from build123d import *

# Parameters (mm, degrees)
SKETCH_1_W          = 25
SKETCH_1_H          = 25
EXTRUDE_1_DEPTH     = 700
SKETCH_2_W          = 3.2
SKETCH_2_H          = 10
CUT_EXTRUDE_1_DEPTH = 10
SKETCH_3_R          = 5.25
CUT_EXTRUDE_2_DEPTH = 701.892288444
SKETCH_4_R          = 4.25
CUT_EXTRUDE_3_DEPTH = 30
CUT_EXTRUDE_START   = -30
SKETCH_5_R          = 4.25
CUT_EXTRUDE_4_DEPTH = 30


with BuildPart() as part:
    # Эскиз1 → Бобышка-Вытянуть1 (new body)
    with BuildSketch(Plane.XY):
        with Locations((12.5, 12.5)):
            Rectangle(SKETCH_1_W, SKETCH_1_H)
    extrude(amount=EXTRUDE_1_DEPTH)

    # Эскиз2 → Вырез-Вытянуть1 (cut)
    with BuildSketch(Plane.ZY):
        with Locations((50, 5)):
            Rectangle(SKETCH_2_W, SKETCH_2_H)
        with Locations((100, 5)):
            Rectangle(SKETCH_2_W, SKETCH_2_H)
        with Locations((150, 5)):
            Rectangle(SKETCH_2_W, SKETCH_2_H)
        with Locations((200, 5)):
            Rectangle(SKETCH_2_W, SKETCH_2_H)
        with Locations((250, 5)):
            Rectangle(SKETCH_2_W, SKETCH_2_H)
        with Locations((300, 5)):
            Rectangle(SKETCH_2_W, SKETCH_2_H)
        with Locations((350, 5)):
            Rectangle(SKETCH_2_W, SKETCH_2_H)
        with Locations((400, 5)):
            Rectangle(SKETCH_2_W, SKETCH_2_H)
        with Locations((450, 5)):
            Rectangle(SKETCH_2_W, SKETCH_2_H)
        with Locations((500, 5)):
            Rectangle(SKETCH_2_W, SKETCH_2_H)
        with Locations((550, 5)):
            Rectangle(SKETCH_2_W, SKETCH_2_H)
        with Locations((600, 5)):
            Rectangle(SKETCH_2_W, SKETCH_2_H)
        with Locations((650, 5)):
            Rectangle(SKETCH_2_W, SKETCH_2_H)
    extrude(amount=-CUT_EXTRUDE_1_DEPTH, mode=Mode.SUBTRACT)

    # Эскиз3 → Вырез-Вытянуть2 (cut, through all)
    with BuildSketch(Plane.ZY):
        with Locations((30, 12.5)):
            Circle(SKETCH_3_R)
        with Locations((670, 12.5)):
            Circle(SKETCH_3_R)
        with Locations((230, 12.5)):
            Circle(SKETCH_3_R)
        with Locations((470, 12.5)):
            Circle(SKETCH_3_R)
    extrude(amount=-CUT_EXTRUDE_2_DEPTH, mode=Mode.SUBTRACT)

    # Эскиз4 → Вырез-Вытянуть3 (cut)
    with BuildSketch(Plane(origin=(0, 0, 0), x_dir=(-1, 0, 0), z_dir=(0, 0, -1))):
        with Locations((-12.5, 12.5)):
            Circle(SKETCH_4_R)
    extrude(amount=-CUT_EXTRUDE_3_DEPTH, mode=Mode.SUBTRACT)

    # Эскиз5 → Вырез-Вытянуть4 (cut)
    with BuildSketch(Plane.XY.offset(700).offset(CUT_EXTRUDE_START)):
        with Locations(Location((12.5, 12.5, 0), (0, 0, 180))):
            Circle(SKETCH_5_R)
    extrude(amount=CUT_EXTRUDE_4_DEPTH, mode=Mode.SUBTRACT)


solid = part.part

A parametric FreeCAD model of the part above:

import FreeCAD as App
import Part
import Sketcher

V = App.Vector
Q = App.Units.Quantity

doc = App.newDocument("Part")
params = doc.addObject("Spreadsheet::Sheet", "Params")
for row, (alias, value) in enumerate([
    ("sketch1_width", "25 mm"),
    ("pad1_length", "700 mm"),
    ("sketch2_width", "10 mm"),
    ("sketch2_height", "3.2 mm"),
    ("pocket1_length", "10 mm"),
    ("sketch3_diameter", "10.5 mm"),
    ("sketch4_diameter", "8.5 mm"),
    ("pocket3_length", "30 mm"),
    ("sketch5_diameter", "8.5 mm"),
    ("pocket4_length", "30 mm"),
], start=1):
    params.set(f"A{row}", alias)
    params.set(f"B{row}", "=" + value)
    params.setAlias(f"B{row}", alias)

body = doc.addObject("PartDesign::Body", "Body")

sketch1 = body.newObject("Sketcher::SketchObject", "Sketch")
sketch1.AttachmentSupport = (doc.getObject("XY_Plane"), [""])
sketch1.MapMode = "FlatFace"
sketch1.addGeometry([
    Part.LineSegment(V(0, 25, 0), V(0, 0, 0)),
    Part.LineSegment(V(0, 0, 0), V(25, 0, 0)),
    Part.LineSegment(V(25, 0, 0), V(25, 25, 0)),
    Part.LineSegment(V(25, 25, 0), V(0, 25, 0)),
], False)
sketch1.addConstraint([
    Sketcher.Constraint("Coincident", 0, 2, 1, 1),
    Sketcher.Constraint("Coincident", 1, 2, 2, 1),
    Sketcher.Constraint("Coincident", 2, 2, 3, 1),
    Sketcher.Constraint("Coincident", 3, 2, 0, 1),
    Sketcher.Constraint("Vertical", 0),
    Sketcher.Constraint("Horizontal", 1),
    Sketcher.Constraint("Vertical", 2),
    Sketcher.Constraint("Horizontal", 3),
    Sketcher.Constraint("Coincident", 0, 2, -1, 1),
    Sketcher.Constraint("Equal", 3, 0),
    Sketcher.Constraint("DistanceX", 1, 1, 1, 2, Q("25 mm")),
])
sketch1.setExpression("Constraints[10]", "Params.sketch1_width")
pad1 = body.newObject("PartDesign::Pad", "Pad")
pad1.Profile = sketch1
pad1.setExpression("Length", "Params.pad1_length")

sketch2 = body.newObject("Sketcher::SketchObject", "Sketch001")
sketch2.AttachmentSupport = (doc.getObject("YZ_Plane"), [""])
sketch2.MapMode = "FlatFace"
sketch2.addGeometry([
    Part.LineSegment(V(10, 48.4, 0), V(0, 48.4, 0)),
    Part.LineSegment(V(0, 48.4, 0), V(0, 51.6, 0)),
    Part.LineSegment(V(0, 51.6, 0), V(10, 51.6, 0)),
    Part.LineSegment(V(10, 51.6, 0), V(10, 48.4, 0)),
    Part.LineSegment(V(10, 98.4, 0), V(0, 98.4, 0)),
    Part.LineSegment(V(0, 98.4, 0), V(0, 101.6, 0)),
    Part.LineSegment(V(0, 101.6, 0), V(10, 101.6, 0)),
    Part.LineSegment(V(10, 101.6, 0), V(10, 98.4, 0)),
    Part.LineSegment(V(10, 148.4, 0), V(0, 148.4, 0)),
    Part.LineSegment(V(0, 148.4, 0), V(0, 151.6, 0)),
    Part.LineSegment(V(0, 151.6, 0), V(10, 151.6, 0)),
    Part.LineSegment(V(10, 151.6, 0), V(10, 148.4, 0)),
    Part.LineSegment(V(10, 198.4, 0), V(0, 198.4, 0)),
    Part.LineSegment(V(0, 198.4, 0), V(0, 201.6, 0)),
    Part.LineSegment(V(0, 201.6, 0), V(10, 201.6, 0)),
    Part.LineSegment(V(10, 201.6, 0), V(10, 198.4, 0)),
    Part.LineSegment(V(10, 248.4, 0), V(0, 248.4, 0)),
    Part.LineSegment(V(0, 248.4, 0), V(0, 251.6, 0)),
    Part.LineSegment(V(0, 251.6, 0), V(10, 251.6, 0)),
    Part.LineSegment(V(10, 251.6, 0), V(10, 248.4, 0)),
    Part.LineSegment(V(10, 298.4, 0), V(0, 298.4, 0)),
    Part.LineSegment(V(0, 298.4, 0), V(0, 301.6, 0)),
    Part.LineSegment(V(0, 301.6, 0), V(10, 301.6, 0)),
    Part.LineSegment(V(10, 301.6, 0), V(10, 298.4, 0)),
    Part.LineSegment(V(10, 348.4, 0), V(0, 348.4, 0)),
    Part.LineSegment(V(0, 348.4, 0), V(0, 351.6, 0)),
    Part.LineSegment(V(0, 351.6, 0), V(10, 351.6, 0)),
    Part.LineSegment(V(10, 351.6, 0), V(10, 348.4, 0)),
    Part.LineSegment(V(10, 398.4, 0), V(0, 398.4, 0)),
    Part.LineSegment(V(0, 398.4, 0), V(0, 401.6, 0)),
    Part.LineSegment(V(0, 401.6, 0), V(10, 401.6, 0)),
    Part.LineSegment(V(10, 401.6, 0), V(10, 398.4, 0)),
    Part.LineSegment(V(10, 448.4, 0), V(0, 448.4, 0)),
    Part.LineSegment(V(0, 448.4, 0), V(0, 451.6, 0)),
    Part.LineSegment(V(0, 451.6, 0), V(10, 451.6, 0)),
    Part.LineSegment(V(10, 451.6, 0), V(10, 448.4, 0)),
    Part.LineSegment(V(10, 498.4, 0), V(0, 498.4, 0)),
    Part.LineSegment(V(0, 498.4, 0), V(0, 501.6, 0)),
    Part.LineSegment(V(0, 501.6, 0), V(10, 501.6, 0)),
    Part.LineSegment(V(10, 501.6, 0), V(10, 498.4, 0)),
    Part.LineSegment(V(10, 548.4, 0), V(0, 548.4, 0)),
    Part.LineSegment(V(0, 548.4, 0), V(0, 551.6, 0)),
    Part.LineSegment(V(0, 551.6, 0), V(10, 551.6, 0)),
    Part.LineSegment(V(10, 551.6, 0), V(10, 548.4, 0)),
    Part.LineSegment(V(10, 598.4, 0), V(0, 598.4, 0)),
    Part.LineSegment(V(0, 598.4, 0), V(0, 601.6, 0)),
    Part.LineSegment(V(0, 601.6, 0), V(10, 601.6, 0)),
    Part.LineSegment(V(10, 601.6, 0), V(10, 598.4, 0)),
    Part.LineSegment(V(10, 648.4, 0), V(0, 648.4, 0)),
    Part.LineSegment(V(0, 648.4, 0), V(0, 651.6, 0)),
    Part.LineSegment(V(0, 651.6, 0), V(10, 651.6, 0)),
    Part.LineSegment(V(10, 651.6, 0), V(10, 648.4, 0)),
], False)
sketch2.addConstraint([
    Sketcher.Constraint("Coincident", 0, 2, 1, 1),
    Sketcher.Constraint("Coincident", 1, 2, 2, 1),
    Sketcher.Constraint("Coincident", 2, 2, 3, 1),
    Sketcher.Constraint("Coincident", 3, 2, 0, 1),
    Sketcher.Constraint("Coincident", 4, 2, 5, 1),
    Sketcher.Constraint("Coincident", 5, 2, 6, 1),
    Sketcher.Constraint("Coincident", 6, 2, 7, 1),
    Sketcher.Constraint("Coincident", 7, 2, 4, 1),
    Sketcher.Constraint("Coincident", 8, 2, 9, 1),
    Sketcher.Constraint("Coincident", 9, 2, 10, 1),
    Sketcher.Constraint("Coincident", 10, 2, 11, 1),
    Sketcher.Constraint("Coincident", 11, 2, 8, 1),
    Sketcher.Constraint("Coincident", 12, 2, 13, 1),
    Sketcher.Constraint("Coincident", 13, 2, 14, 1),
    Sketcher.Constraint("Coincident", 14, 2, 15, 1),
    Sketcher.Constraint("Coincident", 15, 2, 12, 1),
    Sketcher.Constraint("Coincident", 16, 2, 17, 1),
    Sketcher.Constraint("Coincident", 17, 2, 18, 1),
    Sketcher.Constraint("Coincident", 18, 2, 19, 1),
    Sketcher.Constraint("Coincident", 19, 2, 16, 1),
    Sketcher.Constraint("Coincident", 20, 2, 21, 1),
    Sketcher.Constraint("Coincident", 21, 2, 22, 1),
    Sketcher.Constraint("Coincident", 22, 2, 23, 1),
    Sketcher.Constraint("Coincident", 23, 2, 20, 1),
    Sketcher.Constraint("Coincident", 24, 2, 25, 1),
    Sketcher.Constraint("Coincident", 25, 2, 26, 1),
    Sketcher.Constraint("Coincident", 26, 2, 27, 1),
    Sketcher.Constraint("Coincident", 27, 2, 24, 1),
    Sketcher.Constraint("Coincident", 28, 2, 29, 1),
    Sketcher.Constraint("Coincident", 29, 2, 30, 1),
    Sketcher.Constraint("Coincident", 30, 2, 31, 1),
    Sketcher.Constraint("Coincident", 31, 2, 28, 1),
    Sketcher.Constraint("Coincident", 32, 2, 33, 1),
    Sketcher.Constraint("Coincident", 33, 2, 34, 1),
    Sketcher.Constraint("Coincident", 34, 2, 35, 1),
    Sketcher.Constraint("Coincident", 35, 2, 32, 1),
    Sketcher.Constraint("Coincident", 36, 2, 37, 1),
    Sketcher.Constraint("Coincident", 37, 2, 38, 1),
    Sketcher.Constraint("Coincident", 38, 2, 39, 1),
    Sketcher.Constraint("Coincident", 39, 2, 36, 1),
    Sketcher.Constraint("Coincident", 40, 2, 41, 1),
    Sketcher.Constraint("Coincident", 41, 2, 42, 1),
    Sketcher.Constraint("Coincident", 42, 2, 43, 1),
    Sketcher.Constraint("Coincident", 43, 2, 40, 1),
    Sketcher.Constraint("Coincident", 44, 2, 45, 1),
    Sketcher.Constraint("Coincident", 45, 2, 46, 1),
    Sketcher.Constraint("Coincident", 46, 2, 47, 1),
    Sketcher.Constraint("Coincident", 47, 2, 44, 1),
    Sketcher.Constraint("Coincident", 48, 2, 49, 1),
    Sketcher.Constraint("Coincident", 49, 2, 50, 1),
    Sketcher.Constraint("Coincident", 50, 2, 51, 1),
    Sketcher.Constraint("Coincident", 51, 2, 48, 1),
    Sketcher.Constraint("Horizontal", 0),
    Sketcher.Constraint("Vertical", 1),
    Sketcher.Constraint("Horizontal", 2),
    Sketcher.Constraint("Vertical", 3),
    Sketcher.Constraint("Horizontal", 4),
    Sketcher.Constraint("Vertical", 5),
    Sketcher.Constraint("Horizontal", 6),
    Sketcher.Constraint("Vertical", 7),
    Sketcher.Constraint("Horizontal", 8),
    Sketcher.Constraint("Vertical", 9),
    Sketcher.Constraint("Horizontal", 10),
    Sketcher.Constraint("Vertical", 11),
    Sketcher.Constraint("Horizontal", 12),
    Sketcher.Constraint("Vertical", 13),
    Sketcher.Constraint("Horizontal", 14),
    Sketcher.Constraint("Vertical", 15),
    Sketcher.Constraint("Horizontal", 16),
    Sketcher.Constraint("Vertical", 17),
    Sketcher.Constraint("Horizontal", 18),
    Sketcher.Constraint("Vertical", 19),
    Sketcher.Constraint("Horizontal", 20),
    Sketcher.Constraint("Vertical", 21),
    Sketcher.Constraint("Horizontal", 22),
    Sketcher.Constraint("Vertical", 23),
    Sketcher.Constraint("Horizontal", 24),
    Sketcher.Constraint("Vertical", 25),
    Sketcher.Constraint("Horizontal", 26),
    Sketcher.Constraint("Vertical", 27),
    Sketcher.Constraint("Horizontal", 28),
    Sketcher.Constraint("Vertical", 29),
    Sketcher.Constraint("Horizontal", 30),
    Sketcher.Constraint("Vertical", 31),
    Sketcher.Constraint("Horizontal", 32),
    Sketcher.Constraint("Vertical", 33),
    Sketcher.Constraint("Horizontal", 34),
    Sketcher.Constraint("Vertical", 35),
    Sketcher.Constraint("Horizontal", 36),
    Sketcher.Constraint("Vertical", 37),
    Sketcher.Constraint("Horizontal", 38),
    Sketcher.Constraint("Vertical", 39),
    Sketcher.Constraint("Horizontal", 40),
    Sketcher.Constraint("Vertical", 41),
    Sketcher.Constraint("Horizontal", 42),
    Sketcher.Constraint("Vertical", 43),
    Sketcher.Constraint("Horizontal", 44),
    Sketcher.Constraint("Vertical", 45),
    Sketcher.Constraint("Horizontal", 46),
    Sketcher.Constraint("Vertical", 47),
    Sketcher.Constraint("Horizontal", 48),
    Sketcher.Constraint("Vertical", 49),
    Sketcher.Constraint("Horizontal", 50),
    Sketcher.Constraint("Vertical", 51),
    Sketcher.Constraint("PointOnObject", 0, 2, -2),
    Sketcher.Constraint("PointOnObject", 4, 2, -2),
    Sketcher.Constraint("PointOnObject", 8, 2, -2),
    Sketcher.Constraint("PointOnObject", 12, 2, -2),
    Sketcher.Constraint("PointOnObject", 16, 2, -2),
    Sketcher.Constraint("PointOnObject", 20, 2, -2),
    Sketcher.Constraint("PointOnObject", 24, 2, -2),
    Sketcher.Constraint("PointOnObject", 28, 2, -2),
    Sketcher.Constraint("PointOnObject", 32, 2, -2),
    Sketcher.Constraint("PointOnObject", 36, 2, -2),
    Sketcher.Constraint("PointOnObject", 40, 2, -2),
    Sketcher.Constraint("PointOnObject", 44, 2, -2),
    Sketcher.Constraint("PointOnObject", 48, 2, -2),
    Sketcher.Constraint("Vertical", 3, 2, 6, 2),
    Sketcher.Constraint("Vertical", 7, 2, 10, 2),
    Sketcher.Constraint("Vertical", 11, 2, 14, 2),
    Sketcher.Constraint("Vertical", 15, 2, 18, 2),
    Sketcher.Constraint("Vertical", 19, 2, 22, 2),
    Sketcher.Constraint("Vertical", 23, 2, 26, 2),
    Sketcher.Constraint("Vertical", 27, 2, 30, 2),
    Sketcher.Constraint("Vertical", 31, 2, 34, 2),
    Sketcher.Constraint("Vertical", 35, 2, 38, 2),
    Sketcher.Constraint("Vertical", 39, 2, 42, 2),
    Sketcher.Constraint("Vertical", 43, 2, 46, 2),
    Sketcher.Constraint("Vertical", 47, 2, 50, 2),
    Sketcher.Constraint("Equal", 3, 5),
    Sketcher.Constraint("Equal", 7, 9),
    Sketcher.Constraint("Equal", 11, 13),
    Sketcher.Constraint("Equal", 15, 17),
    Sketcher.Constraint("Equal", 19, 21),
    Sketcher.Constraint("Equal", 23, 25),
    Sketcher.Constraint("Equal", 27, 29),
    Sketcher.Constraint("Equal", 31, 33),
    Sketcher.Constraint("Equal", 35, 37),
    Sketcher.Constraint("Equal", 39, 41),
    Sketcher.Constraint("Equal", 43, 45),
    Sketcher.Constraint("Equal", 47, 49),
    Sketcher.Constraint("DistanceX", 0, 2, 0, 1, Q("10 mm")),
    Sketcher.Constraint("DistanceY", 1, 1, 1, 2, Q("3.2 mm")),
    Sketcher.Constraint("DistanceY", 0, 2, 4, 2, Q("50 mm")),
    Sketcher.Constraint("DistanceY", 4, 2, 8, 2, Q("50 mm")),
    Sketcher.Constraint("DistanceY", 8, 2, 12, 2, Q("50 mm")),
    Sketcher.Constraint("DistanceY", 12, 2, 16, 2, Q("50 mm")),
    Sketcher.Constraint("DistanceY", 16, 2, 20, 2, Q("50 mm")),
    Sketcher.Constraint("DistanceY", 20, 2, 24, 2, Q("50 mm")),
    Sketcher.Constraint("DistanceY", 24, 2, 28, 2, Q("50 mm")),
    Sketcher.Constraint("DistanceY", 28, 2, 32, 2, Q("50 mm")),
    Sketcher.Constraint("DistanceY", 32, 2, 36, 2, Q("50 mm")),
    Sketcher.Constraint("DistanceY", 36, 2, 40, 2, Q("50 mm")),
    Sketcher.Constraint("DistanceY", 40, 2, 44, 2, Q("50 mm")),
    Sketcher.Constraint("DistanceY", 44, 2, 48, 2, Q("50 mm")),
    Sketcher.Constraint("DistanceY", -1, 1, 0, 2, Q("48.4 mm")),
])
sketch2.setExpression("Constraints[141]", "Params.sketch2_width")
sketch2.setExpression("Constraints[142]", "Params.sketch2_height")
pocket1 = body.newObject("PartDesign::Pocket", "Pocket")
pocket1.Profile = sketch2
pocket1.setExpression("Length", "Params.pocket1_length")
pocket1.Reversed = True

sketch3 = body.newObject("Sketcher::SketchObject", "Sketch002")
sketch3.AttachmentSupport = (doc.getObject("YZ_Plane"), [""])
sketch3.MapMode = "FlatFace"
sketch3.addGeometry([
    Part.Circle(V(12, 30, 0), V(0, 0, 1), 5),
    Part.Circle(V(12, 670, 0), V(0, 0, 1), 5),
    Part.Circle(V(12, 230, 0), V(0, 0, 1), 5),
    Part.Circle(V(12, 470, 0), V(0, 0, 1), 5),
], False)
sketch3.addConstraint([
    Sketcher.Constraint("Equal", 0, 1),
    Sketcher.Constraint("Equal", 1, 2),
    Sketcher.Constraint("Equal", 2, 3),
    Sketcher.Constraint("Vertical", 0, 3, 1, 3),
    Sketcher.Constraint("Vertical", 1, 3, 2, 3),
    Sketcher.Constraint("Vertical", 2, 3, 3, 3),
    Sketcher.Constraint("Diameter", 0, Q("10.5 mm")),
    Sketcher.Constraint("DistanceY", -1, 1, 0, 3, Q("30 mm")),
    Sketcher.Constraint("DistanceY", -1, 1, 1, 3, Q("670 mm")),
    Sketcher.Constraint("DistanceY", -1, 1, 2, 3, Q("230 mm")),
    Sketcher.Constraint("DistanceY", -1, 1, 3, 3, Q("470 mm")),
    Sketcher.Constraint("DistanceX", -1, 1, 0, 3, Q("12.5 mm")),
])
sketch3.setExpression("Constraints[6]", "Params.sketch3_diameter")
pocket2 = body.newObject("PartDesign::Pocket", "Pocket001")
pocket2.Profile = sketch3
pocket2.Type = "ThroughAll"
pocket2.Reversed = True

sketch4 = body.newObject("Sketcher::SketchObject", "Sketch003")
sketch4.AttachmentSupport = (doc.getObject("XY_Plane"), [""])
sketch4.MapMode = "FlatFace"
sketch4.addGeometry(Part.Circle(V(12.5, 12.5, 0), V(0, 0, 1), 4.2), False)
sketch4.addConstraint([
    Sketcher.Constraint("Diameter", 0, Q("8.5 mm")),
    Sketcher.Constraint("DistanceX", -1, 1, 0, 3, Q("12.5 mm")),
    Sketcher.Constraint("DistanceY", -1, 1, 0, 3, Q("12.5 mm")),
])
sketch4.setExpression("Constraints[0]", "Params.sketch4_diameter")
pocket3 = body.newObject("PartDesign::Pocket", "Pocket002")
pocket3.Profile = sketch4
pocket3.setExpression("Length", "Params.pocket3_length")
pocket3.Reversed = True

sketch5 = body.newObject("Sketcher::SketchObject", "Sketch004")
sketch5.AttachmentSupport = (doc.getObject("XY_Plane"), [""])
sketch5.MapMode = "FlatFace"
sketch5.AttachmentOffset = App.Placement(V(0, 0, 670), App.Rotation())
sketch5.addGeometry(Part.Circle(V(12.5, 12.5, 0), V(0, 0, 1), 4.2), False)
sketch5.addConstraint([
    Sketcher.Constraint("Diameter", 0, Q("8.5 mm")),
    Sketcher.Constraint("DistanceX", -1, 1, 0, 3, Q("12.5 mm")),
    Sketcher.Constraint("DistanceY", -1, 1, 0, 3, Q("12.5 mm")),
])
sketch5.setExpression("Constraints[0]", "Params.sketch5_diameter")
pocket4 = body.newObject("PartDesign::Pocket", "Pocket003")
pocket4.Profile = sketch5
pocket4.setExpression("Length", "Params.pocket4_length")
pocket4.Reversed = True

doc.recompute()
